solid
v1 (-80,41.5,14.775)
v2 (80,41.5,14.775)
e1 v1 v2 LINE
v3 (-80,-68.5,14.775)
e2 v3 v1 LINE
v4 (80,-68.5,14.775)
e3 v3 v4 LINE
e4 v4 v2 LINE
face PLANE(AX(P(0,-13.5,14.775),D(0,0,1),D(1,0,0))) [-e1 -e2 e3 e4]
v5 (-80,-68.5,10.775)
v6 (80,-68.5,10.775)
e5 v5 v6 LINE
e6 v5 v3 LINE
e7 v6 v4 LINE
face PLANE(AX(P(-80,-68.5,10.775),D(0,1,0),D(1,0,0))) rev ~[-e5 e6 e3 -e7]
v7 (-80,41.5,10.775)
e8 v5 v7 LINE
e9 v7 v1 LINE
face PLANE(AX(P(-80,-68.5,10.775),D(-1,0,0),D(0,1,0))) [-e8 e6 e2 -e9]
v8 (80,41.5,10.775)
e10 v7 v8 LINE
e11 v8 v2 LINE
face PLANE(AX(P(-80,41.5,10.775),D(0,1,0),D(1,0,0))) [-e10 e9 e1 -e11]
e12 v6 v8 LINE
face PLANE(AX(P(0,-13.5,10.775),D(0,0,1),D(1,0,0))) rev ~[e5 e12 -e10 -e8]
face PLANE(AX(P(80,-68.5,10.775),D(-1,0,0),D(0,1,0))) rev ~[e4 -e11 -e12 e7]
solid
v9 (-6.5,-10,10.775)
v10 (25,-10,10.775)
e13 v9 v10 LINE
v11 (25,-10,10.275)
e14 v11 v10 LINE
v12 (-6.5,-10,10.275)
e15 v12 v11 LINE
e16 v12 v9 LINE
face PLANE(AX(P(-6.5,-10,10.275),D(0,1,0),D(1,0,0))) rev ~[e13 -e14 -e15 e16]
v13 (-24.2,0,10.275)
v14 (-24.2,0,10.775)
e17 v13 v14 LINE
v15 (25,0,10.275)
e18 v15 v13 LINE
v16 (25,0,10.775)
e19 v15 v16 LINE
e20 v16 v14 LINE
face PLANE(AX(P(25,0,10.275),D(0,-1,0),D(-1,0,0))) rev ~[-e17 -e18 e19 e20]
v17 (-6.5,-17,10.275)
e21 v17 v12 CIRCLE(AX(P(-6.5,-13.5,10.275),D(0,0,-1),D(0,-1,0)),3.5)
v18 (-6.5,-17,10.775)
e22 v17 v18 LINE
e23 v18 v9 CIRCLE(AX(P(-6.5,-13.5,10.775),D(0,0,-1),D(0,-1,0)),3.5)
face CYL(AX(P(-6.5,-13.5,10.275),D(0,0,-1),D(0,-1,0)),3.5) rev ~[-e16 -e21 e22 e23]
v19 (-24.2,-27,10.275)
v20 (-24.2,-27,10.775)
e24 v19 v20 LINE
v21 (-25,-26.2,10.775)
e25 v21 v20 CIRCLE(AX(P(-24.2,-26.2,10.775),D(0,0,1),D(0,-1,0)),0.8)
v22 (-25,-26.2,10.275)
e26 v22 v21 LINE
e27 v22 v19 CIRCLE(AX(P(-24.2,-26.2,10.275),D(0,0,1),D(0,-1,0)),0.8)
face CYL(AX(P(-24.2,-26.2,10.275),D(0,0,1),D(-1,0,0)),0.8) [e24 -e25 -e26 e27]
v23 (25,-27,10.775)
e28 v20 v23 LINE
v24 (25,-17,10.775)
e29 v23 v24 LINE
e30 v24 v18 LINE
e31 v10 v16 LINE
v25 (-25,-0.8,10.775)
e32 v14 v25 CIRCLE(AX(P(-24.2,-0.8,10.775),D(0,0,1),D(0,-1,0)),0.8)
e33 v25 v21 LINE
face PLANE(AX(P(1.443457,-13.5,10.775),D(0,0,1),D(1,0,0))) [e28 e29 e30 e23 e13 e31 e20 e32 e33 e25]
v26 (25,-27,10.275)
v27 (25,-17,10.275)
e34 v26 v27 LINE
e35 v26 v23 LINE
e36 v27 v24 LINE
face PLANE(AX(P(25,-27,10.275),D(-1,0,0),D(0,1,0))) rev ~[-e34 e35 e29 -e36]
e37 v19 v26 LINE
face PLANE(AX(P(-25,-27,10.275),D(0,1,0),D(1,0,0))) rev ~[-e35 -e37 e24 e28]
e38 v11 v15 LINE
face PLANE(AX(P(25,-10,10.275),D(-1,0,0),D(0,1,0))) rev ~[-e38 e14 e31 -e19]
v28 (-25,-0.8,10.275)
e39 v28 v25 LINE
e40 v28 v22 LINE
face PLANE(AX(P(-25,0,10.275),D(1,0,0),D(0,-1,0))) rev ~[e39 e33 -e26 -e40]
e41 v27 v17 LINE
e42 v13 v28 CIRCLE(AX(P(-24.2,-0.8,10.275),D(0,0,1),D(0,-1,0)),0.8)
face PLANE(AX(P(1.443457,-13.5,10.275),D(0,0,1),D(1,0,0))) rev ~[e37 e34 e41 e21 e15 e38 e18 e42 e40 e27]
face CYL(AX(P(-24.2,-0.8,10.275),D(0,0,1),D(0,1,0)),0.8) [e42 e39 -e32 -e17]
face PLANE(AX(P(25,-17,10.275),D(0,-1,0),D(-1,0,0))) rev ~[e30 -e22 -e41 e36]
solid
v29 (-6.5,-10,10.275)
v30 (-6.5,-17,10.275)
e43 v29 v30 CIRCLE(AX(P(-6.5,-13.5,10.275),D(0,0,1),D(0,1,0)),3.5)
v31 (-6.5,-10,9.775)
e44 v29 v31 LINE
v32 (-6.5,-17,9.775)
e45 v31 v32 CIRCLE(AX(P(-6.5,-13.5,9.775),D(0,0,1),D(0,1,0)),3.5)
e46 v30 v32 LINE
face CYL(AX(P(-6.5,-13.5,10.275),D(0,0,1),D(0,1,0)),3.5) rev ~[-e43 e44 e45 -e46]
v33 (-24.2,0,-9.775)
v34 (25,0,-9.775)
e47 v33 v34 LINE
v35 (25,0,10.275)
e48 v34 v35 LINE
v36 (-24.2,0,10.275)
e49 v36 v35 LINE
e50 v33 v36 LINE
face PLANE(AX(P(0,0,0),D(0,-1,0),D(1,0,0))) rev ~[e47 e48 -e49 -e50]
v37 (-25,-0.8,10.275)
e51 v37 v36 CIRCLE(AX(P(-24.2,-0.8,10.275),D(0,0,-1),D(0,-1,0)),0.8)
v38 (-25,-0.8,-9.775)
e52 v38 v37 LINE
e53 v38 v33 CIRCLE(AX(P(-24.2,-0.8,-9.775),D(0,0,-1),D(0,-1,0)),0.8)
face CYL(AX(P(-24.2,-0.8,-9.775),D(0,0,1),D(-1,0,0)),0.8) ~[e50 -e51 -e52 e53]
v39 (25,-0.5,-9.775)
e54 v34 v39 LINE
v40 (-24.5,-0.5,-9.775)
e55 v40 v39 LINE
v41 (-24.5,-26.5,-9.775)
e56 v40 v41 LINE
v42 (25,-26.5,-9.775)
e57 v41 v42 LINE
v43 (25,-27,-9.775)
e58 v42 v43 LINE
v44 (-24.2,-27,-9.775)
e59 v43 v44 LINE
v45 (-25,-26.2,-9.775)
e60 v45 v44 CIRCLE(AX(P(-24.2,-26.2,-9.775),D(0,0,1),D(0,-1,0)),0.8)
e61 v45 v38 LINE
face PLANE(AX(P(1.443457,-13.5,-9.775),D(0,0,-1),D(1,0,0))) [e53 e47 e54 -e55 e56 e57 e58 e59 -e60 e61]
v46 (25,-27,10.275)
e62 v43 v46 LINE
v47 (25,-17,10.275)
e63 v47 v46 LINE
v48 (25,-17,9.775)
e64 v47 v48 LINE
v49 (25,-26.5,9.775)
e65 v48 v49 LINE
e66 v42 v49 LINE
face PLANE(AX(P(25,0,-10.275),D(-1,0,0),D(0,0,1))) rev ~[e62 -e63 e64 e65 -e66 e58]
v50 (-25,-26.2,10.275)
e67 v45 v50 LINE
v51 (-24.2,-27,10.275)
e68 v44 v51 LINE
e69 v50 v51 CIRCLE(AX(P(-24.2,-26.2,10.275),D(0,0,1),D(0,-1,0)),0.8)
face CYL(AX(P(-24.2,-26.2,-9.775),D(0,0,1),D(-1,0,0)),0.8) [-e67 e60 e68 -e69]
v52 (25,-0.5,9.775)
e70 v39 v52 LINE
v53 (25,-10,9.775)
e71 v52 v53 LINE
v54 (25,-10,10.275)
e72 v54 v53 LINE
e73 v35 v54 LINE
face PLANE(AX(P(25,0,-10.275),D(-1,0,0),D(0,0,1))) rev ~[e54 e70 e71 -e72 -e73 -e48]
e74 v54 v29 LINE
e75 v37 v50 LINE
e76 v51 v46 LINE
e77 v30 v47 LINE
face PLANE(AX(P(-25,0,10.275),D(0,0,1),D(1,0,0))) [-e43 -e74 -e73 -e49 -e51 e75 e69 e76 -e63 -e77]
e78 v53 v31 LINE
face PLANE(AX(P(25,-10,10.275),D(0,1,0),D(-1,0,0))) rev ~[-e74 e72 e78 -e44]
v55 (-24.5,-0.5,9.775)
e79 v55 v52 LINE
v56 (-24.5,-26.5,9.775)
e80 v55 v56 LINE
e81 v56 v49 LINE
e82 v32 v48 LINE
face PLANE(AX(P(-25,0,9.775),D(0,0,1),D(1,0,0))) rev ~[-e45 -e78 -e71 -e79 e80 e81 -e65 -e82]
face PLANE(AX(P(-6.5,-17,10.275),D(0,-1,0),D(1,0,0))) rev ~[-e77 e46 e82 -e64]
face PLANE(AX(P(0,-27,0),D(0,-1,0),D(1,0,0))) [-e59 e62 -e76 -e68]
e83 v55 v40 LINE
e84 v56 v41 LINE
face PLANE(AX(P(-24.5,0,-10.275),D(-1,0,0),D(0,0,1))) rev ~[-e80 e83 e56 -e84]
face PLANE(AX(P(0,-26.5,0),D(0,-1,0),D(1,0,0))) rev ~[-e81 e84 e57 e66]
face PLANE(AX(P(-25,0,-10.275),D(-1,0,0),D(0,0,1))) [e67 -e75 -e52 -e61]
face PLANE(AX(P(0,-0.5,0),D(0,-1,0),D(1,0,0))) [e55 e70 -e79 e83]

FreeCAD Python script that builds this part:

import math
import FreeCAD as App
import Part
import Sketcher
Q = App.Units.Quantity


def edges_at(feature, points):
    """Names of the edges that pass closest to the given points."""
    edges = feature.Shape.Edges
    near = lambda p: min(range(len(edges)), key=lambda i: edges[i].distToShape(Part.Vertex(*p))[0])
    return sorted({f"Edge{near(p) + 1}" for p in points})


def faces_at(feature, points):
    """Names of the faces that lie closest to the given points."""
    faces = feature.Shape.Faces
    near = lambda p: min(range(len(faces)), key=lambda i: faces[i].distToShape(Part.Vertex(*p))[0])
    return sorted({f"Face{near(p) + 1}" for p in points})


def add_polygon(sketch, points):
    """Adds a closed chain of lines whose ends are joined by coincident constraints."""
    first, n = sketch.GeometryCount, len(points)
    for a, b in zip(points, points[1:] + points[:1]):
        sketch.addGeometry(Part.LineSegment(App.Vector(*a, 0), App.Vector(*b, 0)), False)
    for i in range(n):
        sketch.addConstraint(Sketcher.Constraint("Coincident", first + i, 2, first + (i + 1) % n, 1))

doc = App.newDocument("Part")
body = doc.addObject("PartDesign::Body", "Body")

# Sketch on XZ plane
sketch1 = body.newObject("Sketcher::SketchObject", "Sketch")
sketch1.AttachmentSupport = (doc.getObject("XZ_Plane"), [""])
sketch1.MapMode = "FlatFace"
add_polygon(sketch1, [(-25, 10.275), (-25, -10.275), (25, -10.275), (25, 10.275)])  # lines 0-3
sketch1.addConstraint([
    Sketcher.Constraint("Vertical", 0),
    Sketcher.Constraint("Horizontal", 1),
    Sketcher.Constraint("Vertical", 2),
    Sketcher.Constraint("Horizontal", 3),
    Sketcher.Constraint("Symmetric", 0, 2, 2, 2, -1, 1),
    Sketcher.Constraint("DistanceX", 1, 1, 1, 2, Q("50 mm")),
    Sketcher.Constraint("DistanceY", 0, 2, 0, 1, Q("20.55 mm")),
])
pad1 = body.newObject("PartDesign::Pad", "Pad")
pad1.Profile = sketch1
pad1.Length = 27
doc.recompute()

thickness = body.newObject("PartDesign::Thickness", "Thickness")
thickness.Base = (pad1, faces_at(pad1, [(25, -13.5, 0)]))
thickness.Value = 0.5
thickness.Reversed = True
thickness.Join = "Arc"

# Sketch on XY plane
sketch2 = body.newObject("Sketcher::SketchObject", "Sketch001")
sketch2.AttachmentSupport = (doc.getObject("XY_Plane"), [""])
sketch2.MapMode = "FlatFace"
sketch2.AttachmentOffset = App.Placement(App.Vector(0, 0, 10.275), App.Rotation())
sketch2.addGeometry([
    Part.ArcOfCircle(Part.Circle(App.Vector(-6.5, -13.5, 0), App.Vector(0, 0, 1), 3.5), math.radians(90), math.radians(270)),
    Part.LineSegment(App.Vector(-6.5, -17, 0), App.Vector(25, -17, 0)),
    Part.LineSegment(App.Vector(25, -17, 0), App.Vector(25, -10, 0)),
    Part.LineSegment(App.Vector(25, -10, 0), App.Vector(-6.5, -10, 0)),
], False)
sketch2.addConstraint([
    Sketcher.Constraint("Tangent", 0, 2, 1, 1),
    Sketcher.Constraint("Coincident", 1, 2, 2, 1),
    Sketcher.Constraint("Coincident", 2, 2, 3, 1),
    Sketcher.Constraint("Tangent", 3, 2, 0, 1),
    Sketcher.Constraint("Horizontal", 1),
    Sketcher.Constraint("Vertical", 2),
    Sketcher.Constraint("Horizontal", 3),
    Sketcher.Constraint("Radius", 0, Q("3.5 mm")),
    Sketcher.Constraint("DistanceX", 1, 1, 1, 2, Q("31.5 mm")),
    Sketcher.Constraint("DistanceY", 0, 2, -1, 1, Q("17 mm")),
    Sketcher.Constraint("DistanceX", -1, 1, 1, 2, Q("25 mm")),
])
pocket1 = body.newObject("PartDesign::Pocket", "Pocket")
pocket1.Profile = sketch2
pocket1.Length = 25

# Sketch on XY plane
sketch3 = body.newObject("Sketcher::SketchObject", "Sketch002")
sketch3.AttachmentSupport = (doc.getObject("XY_Plane"), [""])
sketch3.MapMode = "FlatFace"
sketch3.AttachmentOffset = App.Placement(App.Vector(0, 0, -10.275), App.Rotation())
sketch3.addGeometry([
    Part.LineSegment(App.Vector(25, -27, 0), App.Vector(-25, -27, 0)),  # 0
    Part.LineSegment(App.Vector(-25, -27, 0), App.Vector(-25, 0, 0)),  # 1
    Part.LineSegment(App.Vector(-25, 0, 0), App.Vector(25, 0, 0)),  # 2
    Part.LineSegment(App.Vector(25, 0, 0), App.Vector(25, -10, 0)),  # 3
    Part.LineSegment(App.Vector(25, -10, 0), App.Vector(-6.5, -10, 0)),  # 4
    Part.ArcOfCircle(Part.Circle(App.Vector(-6.5, -13.5, 0), App.Vector(0, 0, 1), 3.5), math.radians(90), math.radians(270)),  # 5
    Part.LineSegment(App.Vector(-6.5, -17, 0), App.Vector(25, -17, 0)),  # 6
    Part.LineSegment(App.Vector(25, -17, 0), App.Vector(25, -27, 0)),  # 7
], False)
sketch3.addConstraint([
    Sketcher.Constraint("Coincident", 0, 2, 1, 1),
    Sketcher.Constraint("Coincident", 1, 2, 2, 1),
    Sketcher.Constraint("Coincident", 2, 2, 3, 1),
    Sketcher.Constraint("Coincident", 3, 2, 4, 1),
    Sketcher.Constraint("Tangent", 4, 2, 5, 1),
    Sketcher.Constraint("Tangent", 5, 2, 6, 1),
    Sketcher.Constraint("Coincident", 6, 2, 7, 1),
    Sketcher.Constraint("Coincident", 7, 2, 0, 1),
    Sketcher.Constraint("Horizontal", 0),
    Sketcher.Constraint("Vertical", 1),
    Sketcher.Constraint("Horizontal", 2),
    Sketcher.Constraint("Vertical", 3),
    Sketcher.Constraint("Horizontal", 4),
    Sketcher.Constraint("Horizontal", 6),
    Sketcher.Constraint("Vertical", 7),
    Sketcher.Constraint("Symmetric", 1, 2, 2, 2, -1, 1),
    Sketcher.Constraint("Vertical", 3, 2, 6, 2),
    Sketcher.Constraint("Equal", 3, 7),
    Sketcher.Constraint("Radius", 5, Q("3.5 mm")),
    Sketcher.Constraint("DistanceX", 0, 2, 0, 1, Q("50 mm")),
    Sketcher.Constraint("DistanceY", 1, 1, 1, 2, Q("27 mm")),
    Sketcher.Constraint("DistanceX", 4, 2, 4, 1, Q("31.5 mm")),
])
pocket2 = body.newObject("PartDesign::Pocket", "Pocket001")
pocket2.Profile = sketch3
pocket2.Length = 0.5
pocket2.Reversed = True
doc.recompute()

fillet = body.newObject("PartDesign::Fillet", "Fillet")
fillet.Base = (pocket2, edges_at(pocket2, [(-25, -27, 0.25), (-25, 0, 0.25)]))
fillet.Radius = 0.8
body2 = doc.addObject("PartDesign::Body", "Body001")

# Sketch on XY plane
sketch4 = body2.newObject("Sketcher::SketchObject", "Sketch003")
sketch4.AttachmentSupport = (doc.getObject("XY_Plane001"), [""])
sketch4.MapMode = "FlatFace"
sketch4.AttachmentOffset = App.Placement(App.Vector(0, 0, 10.275), App.Rotation())
sketch4.addGeometry([
    Part.LineSegment(App.Vector(25, -10, 0), App.Vector(25, 0, 0)),  # 0
    Part.LineSegment(App.Vector(25, 0, 0), App.Vector(-25, 0, 0)),  # 1
    Part.LineSegment(App.Vector(-25, 0, 0), App.Vector(-25, -27, 0)),  # 2
    Part.LineSegment(App.Vector(-25, -27, 0), App.Vector(25, -27, 0)),  # 3
    Part.LineSegment(App.Vector(25, -27, 0), App.Vector(25, -17, 0)),  # 4
    Part.LineSegment(App.Vector(25, -17, 0), App.Vector(-6.5, -17, 0)),  # 5
    Part.ArcOfCircle(Part.Circle(App.Vector(-6.5, -13.5, 0), App.Vector(0, 0, 1), 3.5), math.radians(90), math.radians(270)),  # 6
    Part.LineSegment(App.Vector(-6.5, -10, 0), App.Vector(25, -10, 0)),  # 7
], False)
sketch4.addConstraint([
    Sketcher.Constraint("Coincident", 0, 2, 1, 1),
    Sketcher.Constraint("Coincident", 1, 2, 2, 1),
    Sketcher.Constraint("Coincident", 2, 2, 3, 1),
    Sketcher.Constraint("Coincident", 3, 2, 4, 1),
    Sketcher.Constraint("Coincident", 4, 2, 5, 1),
    Sketcher.Constraint("Tangent", 5, 2, 6, 2),
    Sketcher.Constraint("Tangent", 6, 1, 7, 1),
    Sketcher.Constraint("Coincident", 7, 2, 0, 1),
    Sketcher.Constraint("Vertical", 0),
    Sketcher.Constraint("Horizontal", 1),
    Sketcher.Constraint("Vertical", 2),
    Sketcher.Constraint("Horizontal", 3),
    Sketcher.Constraint("Vertical", 4),
    Sketcher.Constraint("Horizontal", 5),
    Sketcher.Constraint("Horizontal", 7),
    Sketcher.Constraint("Symmetric", 0, 2, 1, 2, -1, 1),
    Sketcher.Constraint("Vertical", 0, 2, 3, 2),
    Sketcher.Constraint("Equal", 0, 4),
    Sketcher.Constraint("Radius", 6, Q("3.5 mm")),
    Sketcher.Constraint("DistanceX", 1, 2, 1, 1, Q("50 mm")),
    Sketcher.Constraint("DistanceY", 0, 1, 0, 2, Q("10 mm")),
    Sketcher.Constraint("DistanceX", 5, 2, 5, 1, Q("31.5 mm")),
])
pad2 = body2.newObject("PartDesign::Pad", "Pad001")
pad2.Profile = sketch4
pad2.Length = 0.5
doc.recompute()

fillet2 = body2.newObject("PartDesign::Fillet", "Fillet001")
fillet2.Base = (pad2, edges_at(pad2, [(-25, -27, 10.525), (-25, 0, 10.525)]))
fillet2.Radius = 0.8
body3 = doc.addObject("PartDesign::Body", "Body002")

# Sketch on XY plane
sketch5 = body3.newObject("Sketcher::SketchObject", "Sketch004")
sketch5.AttachmentSupport = (doc.getObject("XY_Plane002"), [""])
sketch5.MapMode = "FlatFace"
sketch5.AttachmentOffset = App.Placement(App.Vector(0, 0, 10.775), App.Rotation())
add_polygon(sketch5, [(-80, 41.5), (-80, -68.5), (80, -68.5), (80, 41.5)])  # lines 0-3
sketch5.addConstraint([
    Sketcher.Constraint("Vertical", 0),
    Sketcher.Constraint("Horizontal", 1),
    Sketcher.Constraint("Vertical", 2),
    Sketcher.Constraint("Horizontal", 3),
    Sketcher.Constraint("DistanceX", 1, 1, 1, 2, Q("160 mm")),
    Sketcher.Constraint("DistanceY", 0, 2, 0, 1, Q("110 mm")),
    Sketcher.Constraint("DistanceX", 0, 2, -1, 1, Q("80 mm")),
    Sketcher.Constraint("DistanceY", 0, 2, -1, 1, Q("68.5 mm")),
])
pad3 = body3.newObject("PartDesign::Pad", "Pad002")
pad3.Profile = sketch5
pad3.Length = 4

doc.recompute()
